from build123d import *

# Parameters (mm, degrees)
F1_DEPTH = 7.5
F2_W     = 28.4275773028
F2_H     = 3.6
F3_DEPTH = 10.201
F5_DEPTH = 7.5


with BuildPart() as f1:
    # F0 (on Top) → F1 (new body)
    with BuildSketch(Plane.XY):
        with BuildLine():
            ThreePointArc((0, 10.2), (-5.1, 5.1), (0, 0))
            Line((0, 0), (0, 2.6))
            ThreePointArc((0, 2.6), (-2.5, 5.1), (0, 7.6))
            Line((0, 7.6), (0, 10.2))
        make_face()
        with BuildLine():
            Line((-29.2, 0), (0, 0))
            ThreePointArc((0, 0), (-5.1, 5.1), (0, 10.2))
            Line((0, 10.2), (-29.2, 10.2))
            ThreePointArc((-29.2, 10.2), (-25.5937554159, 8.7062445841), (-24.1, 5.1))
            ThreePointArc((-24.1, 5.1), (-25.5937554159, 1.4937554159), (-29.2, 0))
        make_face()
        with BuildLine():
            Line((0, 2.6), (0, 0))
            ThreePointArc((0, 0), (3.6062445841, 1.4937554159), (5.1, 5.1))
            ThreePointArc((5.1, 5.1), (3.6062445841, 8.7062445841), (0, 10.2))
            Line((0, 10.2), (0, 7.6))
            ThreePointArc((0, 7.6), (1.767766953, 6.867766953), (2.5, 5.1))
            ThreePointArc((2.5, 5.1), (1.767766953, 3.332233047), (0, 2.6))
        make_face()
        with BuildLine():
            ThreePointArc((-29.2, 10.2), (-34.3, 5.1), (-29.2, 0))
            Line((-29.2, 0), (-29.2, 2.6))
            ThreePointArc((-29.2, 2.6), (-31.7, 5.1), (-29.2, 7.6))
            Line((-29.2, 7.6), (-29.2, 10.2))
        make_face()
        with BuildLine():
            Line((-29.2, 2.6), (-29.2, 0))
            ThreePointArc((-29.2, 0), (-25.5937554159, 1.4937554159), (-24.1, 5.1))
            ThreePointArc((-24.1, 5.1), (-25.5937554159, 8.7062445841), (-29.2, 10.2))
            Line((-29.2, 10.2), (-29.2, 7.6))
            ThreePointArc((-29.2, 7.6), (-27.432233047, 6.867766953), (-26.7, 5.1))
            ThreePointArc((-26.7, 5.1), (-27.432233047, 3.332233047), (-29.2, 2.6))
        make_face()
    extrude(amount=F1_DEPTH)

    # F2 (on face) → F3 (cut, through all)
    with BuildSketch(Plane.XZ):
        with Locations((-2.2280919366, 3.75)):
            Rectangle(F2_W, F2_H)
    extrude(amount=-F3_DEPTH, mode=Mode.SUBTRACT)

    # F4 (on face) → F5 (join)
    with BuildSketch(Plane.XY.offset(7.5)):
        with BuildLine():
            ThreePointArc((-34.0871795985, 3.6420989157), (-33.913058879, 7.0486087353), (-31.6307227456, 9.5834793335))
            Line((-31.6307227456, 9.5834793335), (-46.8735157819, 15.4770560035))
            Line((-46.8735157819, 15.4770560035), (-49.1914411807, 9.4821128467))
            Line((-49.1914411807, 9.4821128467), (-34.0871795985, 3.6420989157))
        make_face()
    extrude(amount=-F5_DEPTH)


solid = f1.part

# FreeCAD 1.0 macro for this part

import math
import FreeCAD as App
import Part
import Sketcher
from FreeCAD import Vector


def add_polygon(sketch, points):
    """Adds a closed chain of lines whose ends are joined by coincident constraints."""
    first, n = sketch.GeometryCount, len(points)
    for a, b in zip(points, points[1:] + points[:1]):
        sketch.addGeometry(Part.LineSegment(App.Vector(*a, 0), App.Vector(*b, 0)), False)
    for i in range(n):
        sketch.addConstraint(Sketcher.Constraint("Coincident", first + i, 2, first + (i + 1) % n, 1))

doc = App.newDocument("Part")
body = doc.addObject("PartDesign::Body", "Body")

sketch1 = doc.addObject("Sketcher::SketchObject", "Sketch")
body.addObject(sketch1)
sketch1.AttachmentSupport = (doc.XY_Plane, [""])
sketch1.MapMode = "FlatFace"
sketch1.addGeometry([
    Part.LineSegment(Vector(0, 10.2, 0), Vector(-29.2, 10.2, 0)),
    Part.ArcOfCircle(Part.Circle(Vector(-29.2, 5.1, 0), Vector(0, 0, 1), 5.1), math.radians(90), math.radians(270)),
    Part.LineSegment(Vector(-29.2, 0, 0), Vector(0, 0, 0)),
    Part.ArcOfCircle(Part.Circle(Vector(0, 5.1, 0), Vector(0, 0, 1), 5.1), math.radians(-90), math.radians(0)),
    Part.ArcOfCircle(Part.Circle(Vector(0, 5.1, 0), Vector(0, 0, 1), 5.1), math.radians(0), math.radians(90)),
    Part.ArcOfCircle(Part.Circle(Vector(0, 5.1, 0), Vector(0, 0, 1), 2.5), math.radians(90), math.radians(270)),
    Part.ArcOfCircle(Part.Circle(Vector(0, 5.1, 0), Vector(0, 0, 1), 2.5), math.radians(0), math.radians(90)),
    Part.ArcOfCircle(Part.Circle(Vector(0, 5.1, 0), Vector(0, 0, 1), 2.5), math.radians(-90), math.radians(0)),
    Part.ArcOfCircle(Part.Circle(Vector(-29.2, 5.1, 0), Vector(0, 0, 1), 2.5), math.radians(0), math.radians(90)),
    Part.ArcOfCircle(Part.Circle(Vector(-29.2, 5.1, 0), Vector(0, 0, 1), 2.5), math.radians(-90), math.radians(0)),
    Part.ArcOfCircle(Part.Circle(Vector(-29.2, 5.1, 0), Vector(0, 0, 1), 2.5), math.radians(90), math.radians(270)),
], False)
sketch1.addConstraint([
    Sketcher.Constraint("Tangent", 0, 2, 1, 1),
    Sketcher.Constraint("Tangent", 1, 2, 2, 1),
    Sketcher.Constraint("Tangent", 2, 2, 3, 1),
    Sketcher.Constraint("Tangent", 3, 2, 4, 1),
    Sketcher.Constraint("Tangent", 4, 2, 0, 1),
    Sketcher.Constraint("Tangent", 5, 1, 6, 2),
    Sketcher.Constraint("Tangent", 6, 1, 7, 2),
    Sketcher.Constraint("Tangent", 7, 1, 5, 2),
    Sketcher.Constraint("Tangent", 8, 1, 9, 2),
    Sketcher.Constraint("Tangent", 9, 1, 10, 2),
    Sketcher.Constraint("Tangent", 10, 1, 8, 2),
    Sketcher.Constraint("Horizontal", 0),
    Sketcher.Constraint("Horizontal", 2),
    Sketcher.Constraint("Coincident", 2, 2, -1, 1),
    Sketcher.Constraint("Coincident", 5, 3, 3, 3),
    Sketcher.Constraint("Coincident", 8, 3, 1, 3),
    Sketcher.Constraint("Equal", 1, 3),
    Sketcher.Constraint("Equal", 7, 8),
    Sketcher.Constraint("PointOnObject", 5, 1, -2),
    Sketcher.Constraint("PointOnObject", 7, 1, -2),
    Sketcher.Constraint("Horizontal", 10, 3, 3, 2),
    Sketcher.Constraint("Horizontal", 3, 2, 6, 1),
    Sketcher.Constraint("Horizontal", 6, 1, 8, 1),
    Sketcher.Constraint("Vertical", 1, 2, 9, 1),
    Sketcher.Constraint("Vertical", 9, 1, 10, 1),
    Sketcher.Constraint("Radius", 1, 5.1),
    Sketcher.Constraint("Radius", 5, 2.5),
    Sketcher.Constraint("DistanceX", 0, 2, 0, 1, 29.2),
])
pad1 = doc.addObject("PartDesign::Pad", "Pad")
body.addObject(pad1)
pad1.Profile = sketch1
pad1.Length = 7.5

sketch2 = doc.addObject("Sketcher::SketchObject", "Sketch001")
body.addObject(sketch2)
sketch2.AttachmentSupport = (doc.XZ_Plane, [""])
sketch2.MapMode = "FlatFace"
add_polygon(sketch2, [(-16.4, 5.5), (-16.4, 1.9), (12, 1.9), (12, 5.5)])
sketch2.addConstraint([
    Sketcher.Constraint("Vertical", 0),
    Sketcher.Constraint("Horizontal", 1),
    Sketcher.Constraint("Vertical", 2),
    Sketcher.Constraint("Horizontal", 3),
    Sketcher.Constraint("DistanceY", 0, 2, 0, 1, 3.6),
    Sketcher.Constraint("DistanceY", -1, 1, 0, 2, 1.95),
    Sketcher.Constraint("DistanceX", 1, 1, 1, 2, 28.427577),
    Sketcher.Constraint("DistanceX", 0, 2, -1, 1, 16.441881),
])
pocket1 = doc.addObject("PartDesign::Pocket", "Pocket")
body.addObject(pocket1)
pocket1.Profile = sketch2
pocket1.Type = "ThroughAll"

sketch3 = doc.addObject("Sketcher::SketchObject", "Sketch002")
body.addObject(sketch3)
sketch3.AttachmentSupport = (doc.XY_Plane, [""])
sketch3.MapMode = "FlatFace"
sketch3.AttachmentOffset = App.Placement(Vector(0, 0, 7.5), App.Rotation())
sketch3.addGeometry([
    Part.ArcOfCircle(Part.Circle(Vector(-29.2, 5.1, 0), Vector(0, 0, 1), 5.1), math.radians(118.464379), math.radians(196.610439)),
    Part.LineSegment(Vector(-31.630723, 9.583479, 0), Vector(-46.873516, 15.477056, 0)),
    Part.LineSegment(Vector(-46.873516, 15.477056, 0), Vector(-49.191441, 9.482113, 0)),
    Part.LineSegment(Vector(-49.191441, 9.482113, 0), Vector(-34.08718, 3.642099, 0)),
], False)
sketch3.addConstraint([
    Sketcher.Constraint("Coincident", 0, 1, 1, 1),
    Sketcher.Constraint("Coincident", 1, 2, 2, 1),
    Sketcher.Constraint("Coincident", 2, 2, 3, 1),
    Sketcher.Constraint("Coincident", 3, 2, 0, 2),
    Sketcher.Constraint("Radius", 0, 5.1),
    Sketcher.Constraint("DistanceX", 0, 3, -1, 1, 29.2),
    Sketcher.Constraint("DistanceY", -1, 1, 0, 3, 5.1),
    Sketcher.Constraint("DistanceY", -1, 1, 3, 2, 3.642099),
    Sketcher.Constraint("Distance", 1, 16.34249),
    Sketcher.Constraint("Distance", 2, 6.427451),
    Sketcher.Constraint("DistanceY", -1, 1, 0, 1, 9.583479),
    Sketcher.Constraint("DistanceX", 2, 2, -1, 1, 49.191441),
    Sketcher.Constraint("Distance", 3, 16.193964),
])
pad2 = doc.addObject("PartDesign::Pad", "Pad001")
body.addObject(pad2)
pad2.Profile = sketch3
pad2.Length = 7.5
pad2.Reversed = True

doc.recompute()
